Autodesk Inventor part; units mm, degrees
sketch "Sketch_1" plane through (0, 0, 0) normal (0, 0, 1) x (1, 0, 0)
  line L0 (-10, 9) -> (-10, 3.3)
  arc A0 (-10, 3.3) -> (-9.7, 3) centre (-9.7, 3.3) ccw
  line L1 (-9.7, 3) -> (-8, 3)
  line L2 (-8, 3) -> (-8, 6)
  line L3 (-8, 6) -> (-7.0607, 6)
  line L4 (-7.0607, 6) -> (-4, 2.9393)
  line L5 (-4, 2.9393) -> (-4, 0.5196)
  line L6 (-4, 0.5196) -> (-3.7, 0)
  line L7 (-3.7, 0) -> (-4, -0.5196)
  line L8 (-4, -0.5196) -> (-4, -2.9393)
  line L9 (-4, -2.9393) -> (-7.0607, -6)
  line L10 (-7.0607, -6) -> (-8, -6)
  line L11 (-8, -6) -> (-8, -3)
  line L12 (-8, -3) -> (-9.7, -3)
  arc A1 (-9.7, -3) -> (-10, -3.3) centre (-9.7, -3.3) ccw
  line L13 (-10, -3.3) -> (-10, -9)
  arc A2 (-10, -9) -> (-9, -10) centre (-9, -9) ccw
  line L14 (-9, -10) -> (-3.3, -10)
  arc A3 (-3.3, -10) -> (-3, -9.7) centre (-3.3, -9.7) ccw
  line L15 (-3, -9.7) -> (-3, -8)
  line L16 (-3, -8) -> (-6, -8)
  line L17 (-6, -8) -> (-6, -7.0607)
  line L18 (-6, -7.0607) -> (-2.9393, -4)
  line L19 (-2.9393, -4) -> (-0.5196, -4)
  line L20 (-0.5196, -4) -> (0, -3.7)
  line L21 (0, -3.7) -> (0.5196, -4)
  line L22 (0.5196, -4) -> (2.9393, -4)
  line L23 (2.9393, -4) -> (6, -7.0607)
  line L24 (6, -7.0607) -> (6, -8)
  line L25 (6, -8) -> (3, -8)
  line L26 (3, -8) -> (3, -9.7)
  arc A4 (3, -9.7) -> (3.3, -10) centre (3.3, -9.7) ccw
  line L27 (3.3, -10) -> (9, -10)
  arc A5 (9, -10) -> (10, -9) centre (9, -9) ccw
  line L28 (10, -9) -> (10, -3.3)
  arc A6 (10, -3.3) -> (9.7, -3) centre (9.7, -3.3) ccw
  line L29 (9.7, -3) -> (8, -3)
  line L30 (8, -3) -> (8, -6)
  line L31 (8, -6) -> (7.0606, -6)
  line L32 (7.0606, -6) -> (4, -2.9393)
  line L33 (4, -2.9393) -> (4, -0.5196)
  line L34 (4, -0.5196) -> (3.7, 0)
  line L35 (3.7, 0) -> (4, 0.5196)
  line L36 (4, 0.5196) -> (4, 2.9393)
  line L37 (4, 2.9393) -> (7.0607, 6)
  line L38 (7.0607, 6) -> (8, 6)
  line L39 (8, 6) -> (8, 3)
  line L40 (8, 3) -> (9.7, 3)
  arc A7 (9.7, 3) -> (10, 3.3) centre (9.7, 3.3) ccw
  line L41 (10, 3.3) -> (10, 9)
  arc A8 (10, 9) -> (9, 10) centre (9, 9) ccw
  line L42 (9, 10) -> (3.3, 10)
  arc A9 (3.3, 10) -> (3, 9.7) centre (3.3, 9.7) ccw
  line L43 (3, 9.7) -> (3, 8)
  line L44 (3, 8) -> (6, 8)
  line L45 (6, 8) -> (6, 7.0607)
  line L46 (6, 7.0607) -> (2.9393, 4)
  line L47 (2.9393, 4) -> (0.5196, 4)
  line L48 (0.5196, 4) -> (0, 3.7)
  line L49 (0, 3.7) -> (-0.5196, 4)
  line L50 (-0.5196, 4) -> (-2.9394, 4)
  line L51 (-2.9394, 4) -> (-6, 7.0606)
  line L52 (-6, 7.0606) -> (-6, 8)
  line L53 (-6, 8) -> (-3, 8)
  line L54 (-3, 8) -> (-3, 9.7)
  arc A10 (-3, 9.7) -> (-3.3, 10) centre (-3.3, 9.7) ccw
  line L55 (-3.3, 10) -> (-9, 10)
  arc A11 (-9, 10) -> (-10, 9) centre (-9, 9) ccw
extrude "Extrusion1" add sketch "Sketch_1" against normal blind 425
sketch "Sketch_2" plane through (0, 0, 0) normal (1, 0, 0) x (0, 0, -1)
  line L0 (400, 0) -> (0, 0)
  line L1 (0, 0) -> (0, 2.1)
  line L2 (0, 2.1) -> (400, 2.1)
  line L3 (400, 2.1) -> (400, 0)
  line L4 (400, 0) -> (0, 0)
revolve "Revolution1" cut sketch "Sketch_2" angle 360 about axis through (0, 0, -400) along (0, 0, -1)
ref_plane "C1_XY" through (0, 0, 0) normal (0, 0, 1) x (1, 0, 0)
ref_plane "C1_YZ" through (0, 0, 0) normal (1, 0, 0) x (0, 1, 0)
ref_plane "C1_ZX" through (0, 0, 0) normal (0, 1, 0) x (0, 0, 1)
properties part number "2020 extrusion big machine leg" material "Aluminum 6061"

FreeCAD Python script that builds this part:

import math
import FreeCAD as App
import Part
import Sketcher
Q = App.Units.Quantity


def add_polygon(sketch, points):
    """Adds a closed chain of lines whose ends are joined by coincident constraints."""
    first, n = sketch.GeometryCount, len(points)
    for a, b in zip(points, points[1:] + points[:1]):
        sketch.addGeometry(Part.LineSegment(App.Vector(*a, 0), App.Vector(*b, 0)), False)
    for i in range(n):
        sketch.addConstraint(Sketcher.Constraint("Coincident", first + i, 2, first + (i + 1) % n, 1))

doc = App.newDocument("Part")
params = doc.addObject("Spreadsheet::Sheet", "Params")
for row, (alias, value) in enumerate([
    ("sketch1_radius", "1 mm"),
    ("sketch1_radius2", "0.3 mm"),
    ("sketch1_width", "3 mm"),
    ("sketch1_width2", "1.7 mm"),
    ("sketch1_width3", "5.7 mm"),
    ("pad1_length", "425 mm"),
    ("sketch2_height", "400 mm"),
    ("sketch2_width", "2.1 mm"),
    ("groove_angle", "360 deg"),
], start=1):
    params.set(f"A{row}", alias)
    params.set(f"B{row}", "=" + value)
    params.setAlias(f"B{row}", alias)

body = doc.addObject("PartDesign::Body", "Body")

# Sketch on XY plane
sketch1 = doc.addObject("Sketcher::SketchObject", "Sketch")
body.addObject(sketch1)
sketch1.AttachmentSupport = (doc.XY_Plane, [""])
sketch1.MapMode = "FlatFace"
sketch1.addGeometry([
    Part.ArcOfCircle(Part.Circle(App.Vector(-9, 9, 0), App.Vector(0, 0, 1), 1), math.radians(90), math.radians(180)),  # 0
    Part.LineSegment(App.Vector(-10, 9, 0), App.Vector(-10, 3.3, 0)),  # 1
    Part.ArcOfCircle(Part.Circle(App.Vector(-9.7, 3.3, 0), App.Vector(0, 0, 1), 0.3), math.radians(180), math.radians(270)),  # 2
    Part.LineSegment(App.Vector(-9.7, 3, 0), App.Vector(-8, 3, 0)),  # 3
    Part.LineSegment(App.Vector(-8, 3, 0), App.Vector(-8, 6, 0)),  # 4
    Part.LineSegment(App.Vector(-8, 6, 0), App.Vector(-7.06, 6, 0)),  # 5
    Part.LineSegment(App.Vector(-7.06, 6, 0), App.Vector(-4, 2.94, 0)),  # 6
    Part.LineSegment(App.Vector(-4, 2.94, 0), App.Vector(-4, 0.52, 0)),  # 7
    Part.LineSegment(App.Vector(-4, 0.52, 0), App.Vector(-3.7, 0, 0)),  # 8
    Part.LineSegment(App.Vector(-3.7, 0, 0), App.Vector(-4, -0.52, 0)),  # 9
    Part.LineSegment(App.Vector(-4, -0.52, 0), App.Vector(-4, -2.94, 0)),  # 10
    Part.LineSegment(App.Vector(-4, -2.94, 0), App.Vector(-7.06, -6, 0)),  # 11
    Part.LineSegment(App.Vector(-7.06, -6, 0), App.Vector(-8, -6, 0)),  # 12
    Part.LineSegment(App.Vector(-8, -6, 0), App.Vector(-8, -3, 0)),  # 13
    Part.LineSegment(App.Vector(-8, -3, 0), App.Vector(-9.7, -3, 0)),  # 14
    Part.ArcOfCircle(Part.Circle(App.Vector(-9.7, -3.3, 0), App.Vector(0, 0, 1), 0.3), math.radians(90), math.radians(180)),  # 15
    Part.LineSegment(App.Vector(-10, -3.3, 0), App.Vector(-10, -9, 0)),  # 16
    Part.ArcOfCircle(Part.Circle(App.Vector(-9, -9, 0), App.Vector(0, 0, 1), 1), math.radians(180), math.radians(270)),  # 17
    Part.LineSegment(App.Vector(-9, -10, 0), App.Vector(-3.3, -10, 0)),  # 18
    Part.ArcOfCircle(Part.Circle(App.Vector(-3.3, -9.7, 0), App.Vector(0, 0, 1), 0.3), math.radians(-90), math.radians(0)),  # 19
    Part.LineSegment(App.Vector(-3, -9.7, 0), App.Vector(-3, -8, 0)),  # 20
    Part.LineSegment(App.Vector(-3, -8, 0), App.Vector(-6, -8, 0)),  # 21
    Part.LineSegment(App.Vector(-6, -8, 0), App.Vector(-6, -7.06, 0)),  # 22
    Part.LineSegment(App.Vector(-6, -7.06, 0), App.Vector(-2.94, -4, 0)),  # 23
    Part.LineSegment(App.Vector(-2.94, -4, 0), App.Vector(-0.52, -4, 0)),  # 24
    Part.LineSegment(App.Vector(-0.52, -4, 0), App.Vector(0, -3.7, 0)),  # 25
    Part.LineSegment(App.Vector(0, -3.7, 0), App.Vector(0.52, -4, 0)),  # 26
    Part.LineSegment(App.Vector(0.52, -4, 0), App.Vector(2.94, -4, 0)),  # 27
    Part.LineSegment(App.Vector(2.94, -4, 0), App.Vector(6, -7.06, 0)),  # 28
    Part.LineSegment(App.Vector(6, -7.06, 0), App.Vector(6, -8, 0)),  # 29
    Part.LineSegment(App.Vector(6, -8, 0), App.Vector(3, -8, 0)),  # 30
    Part.LineSegment(App.Vector(3, -8, 0), App.Vector(3, -9.7, 0)),  # 31
    Part.ArcOfCircle(Part.Circle(App.Vector(3.3, -9.7, 0), App.Vector(0, 0, 1), 0.3), math.radians(180), math.radians(270)),  # 32
    Part.LineSegment(App.Vector(3.3, -10, 0), App.Vector(9, -10, 0)),  # 33
    Part.ArcOfCircle(Part.Circle(App.Vector(9, -9, 0), App.Vector(0, 0, 1), 1), math.radians(-90), math.radians(0)),  # 34
    Part.LineSegment(App.Vector(10, -9, 0), App.Vector(10, -3.3, 0)),  # 35
    Part.ArcOfCircle(Part.Circle(App.Vector(9.7, -3.3, 0), App.Vector(0, 0, 1), 0.3), math.radians(0), math.radians(90)),  # 36
    Part.LineSegment(App.Vector(9.7, -3, 0), App.Vector(8, -3, 0)),  # 37
    Part.LineSegment(App.Vector(8, -3, 0), App.Vector(8, -6, 0)),  # 38
    Part.LineSegment(App.Vector(8, -6, 0), App.Vector(7.06, -6, 0)),  # 39
    Part.LineSegment(App.Vector(7.06, -6, 0), App.Vector(4, -2.94, 0)),  # 40
    Part.LineSegment(App.Vector(4, -2.94, 0), App.Vector(4, -0.52, 0)),  # 41
    Part.LineSegment(App.Vector(4, -0.52, 0), App.Vector(3.7, 0, 0)),  # 42
    Part.LineSegment(App.Vector(3.7, 0, 0), App.Vector(4, 0.52, 0)),  # 43
    Part.LineSegment(App.Vector(4, 0.52, 0), App.Vector(4, 2.94, 0)),  # 44
    Part.LineSegment(App.Vector(4, 2.94, 0), App.Vector(7.06, 6, 0)),  # 45
    Part.LineSegment(App.Vector(7.06, 6, 0), App.Vector(8, 6, 0)),  # 46
    Part.LineSegment(App.Vector(8, 6, 0), App.Vector(8, 3, 0)),  # 47
    Part.LineSegment(App.Vector(8, 3, 0), App.Vector(9.7, 3, 0)),  # 48
    Part.ArcOfCircle(Part.Circle(App.Vector(9.7, 3.3, 0), App.Vector(0, 0, 1), 0.3), math.radians(-90), math.radians(0)),  # 49
    Part.LineSegment(App.Vector(10, 3.3, 0), App.Vector(10, 9, 0)),  # 50
    Part.ArcOfCircle(Part.Circle(App.Vector(9, 9, 0), App.Vector(0, 0, 1), 1), math.radians(0), math.radians(90)),  # 51
    Part.LineSegment(App.Vector(9, 10, 0), App.Vector(3.3, 10, 0)),  # 52
    Part.ArcOfCircle(Part.Circle(App.Vector(3.3, 9.7, 0), App.Vector(0, 0, 1), 0.3), math.radians(90), math.radians(180)),  # 53
    Part.LineSegment(App.Vector(3, 9.7, 0), App.Vector(3, 8, 0)),  # 54
    Part.LineSegment(App.Vector(3, 8, 0), App.Vector(6, 8, 0)),  # 55
    Part.LineSegment(App.Vector(6, 8, 0), App.Vector(6, 7.06, 0)),  # 56
    Part.LineSegment(App.Vector(6, 7.06, 0), App.Vector(2.94, 4, 0)),  # 57
    Part.LineSegment(App.Vector(2.94, 4, 0), App.Vector(0.52, 4, 0)),  # 58
    Part.LineSegment(App.Vector(0.52, 4, 0), App.Vector(0, 3.7, 0)),  # 59
    Part.LineSegment(App.Vector(0, 3.7, 0), App.Vector(-0.52, 4, 0)),  # 60
    Part.LineSegment(App.Vector(-0.52, 4, 0), App.Vector(-2.94, 4, 0)),  # 61
    Part.LineSegment(App.Vector(-2.94, 4, 0), App.Vector(-6, 7.06, 0)),  # 62
    Part.LineSegment(App.Vector(-6, 7.06, 0), App.Vector(-6, 8, 0)),  # 63
    Part.LineSegment(App.Vector(-6, 8, 0), App.Vector(-3, 8, 0)),  # 64
    Part.LineSegment(App.Vector(-3, 8, 0), App.Vector(-3, 9.7, 0)),  # 65
    Part.ArcOfCircle(Part.Circle(App.Vector(-3.3, 9.7, 0), App.Vector(0, 0, 1), 0.3), math.radians(0), math.radians(90)),  # 66
    Part.LineSegment(App.Vector(-3.3, 10, 0), App.Vector(-9, 10, 0)),  # 67
], False)
sketch1.addConstraint([
    Sketcher.Constraint("Tangent", 0, 2, 1, 1),
    Sketcher.Constraint("Tangent", 1, 2, 2, 1),
    Sketcher.Constraint("Tangent", 2, 2, 3, 1),
    Sketcher.Constraint("Coincident", 3, 2, 4, 1),
    Sketcher.Constraint("Coincident", 4, 2, 5, 1),
    Sketcher.Constraint("Coincident", 5, 2, 6, 1),
    Sketcher.Constraint("Coincident", 6, 2, 7, 1),
    Sketcher.Constraint("Coincident", 7, 2, 8, 1),
    Sketcher.Constraint("Coincident", 8, 2, 9, 1),
    Sketcher.Constraint("Coincident", 9, 2, 10, 1),
    Sketcher.Constraint("Coincident", 10, 2, 11, 1),
    Sketcher.Constraint("Coincident", 11, 2, 12, 1),
    Sketcher.Constraint("Coincident", 12, 2, 13, 1),
    Sketcher.Constraint("Coincident", 13, 2, 14, 1),
    Sketcher.Constraint("Tangent", 14, 2, 15, 1),
    Sketcher.Constraint("Tangent", 15, 2, 16, 1),
    Sketcher.Constraint("Tangent", 16, 2, 17, 1),
    Sketcher.Constraint("Tangent", 17, 2, 18, 1),
    Sketcher.Constraint("Tangent", 18, 2, 19, 1),
    Sketcher.Constraint("Tangent", 19, 2, 20, 1),
    Sketcher.Constraint("Coincident", 20, 2, 21, 1),
    Sketcher.Constraint("Coincident", 21, 2, 22, 1),
    Sketcher.Constraint("Coincident", 22, 2, 23, 1),
    Sketcher.Constraint("Coincident", 23, 2, 24, 1),
    Sketcher.Constraint("Coincident", 24, 2, 25, 1),
    Sketcher.Constraint("Coincident", 25, 2, 26, 1),
    Sketcher.Constraint("Coincident", 26, 2, 27, 1),
    Sketcher.Constraint("Coincident", 27, 2, 28, 1),
    Sketcher.Constraint("Coincident", 28, 2, 29, 1),
    Sketcher.Constraint("Coincident", 29, 2, 30, 1),
    Sketcher.Constraint("Coincident", 30, 2, 31, 1),
    Sketcher.Constraint("Tangent", 31, 2, 32, 1),
    Sketcher.Constraint("Tangent", 32, 2, 33, 1),
    Sketcher.Constraint("Tangent", 33, 2, 34, 1),
    Sketcher.Constraint("Tangent", 34, 2, 35, 1),
    Sketcher.Constraint("Tangent", 35, 2, 36, 1),
    Sketcher.Constraint("Tangent", 36, 2, 37, 1),
    Sketcher.Constraint("Coincident", 37, 2, 38, 1),
    Sketcher.Constraint("Coincident", 38, 2, 39, 1),
    Sketcher.Constraint("Coincident", 39, 2, 40, 1),
    Sketcher.Constraint("Coincident", 40, 2, 41, 1),
    Sketcher.Constraint("Coincident", 41, 2, 42, 1),
    Sketcher.Constraint("Coincident", 42, 2, 43, 1),
    Sketcher.Constraint("Coincident", 43, 2, 44, 1),
    Sketcher.Constraint("Coincident", 44, 2, 45, 1),
    Sketcher.Constraint("Coincident", 45, 2, 46, 1),
    Sketcher.Constraint("Coincident", 46, 2, 47, 1),
    Sketcher.Constraint("Coincident", 47, 2, 48, 1),
    Sketcher.Constraint("Tangent", 48, 2, 49, 1),
    Sketcher.Constraint("Tangent", 49, 2, 50, 1),
    Sketcher.Constraint("Tangent", 50, 2, 51, 1),
    Sketcher.Constraint("Tangent", 51, 2, 52, 1),
    Sketcher.Constraint("Tangent", 52, 2, 53, 1),
    Sketcher.Constraint("Tangent", 53, 2, 54, 1),
    Sketcher.Constraint("Coincident", 54, 2, 55, 1),
    Sketcher.Constraint("Coincident", 55, 2, 56, 1),
    Sketcher.Constraint("Coincident", 56, 2, 57, 1),
    Sketcher.Constraint("Coincident", 57, 2, 58, 1),
    Sketcher.Constraint("Coincident", 58, 2, 59, 1),
    Sketcher.Constraint("Coincident", 59, 2, 60, 1),
    Sketcher.Constraint("Coincident", 60, 2, 61, 1),
    Sketcher.Constraint("Coincident", 61, 2, 62, 1),
    Sketcher.Constraint("Coincident", 62, 2, 63, 1),
    Sketcher.Constraint("Coincident", 63, 2, 64, 1),
    Sketcher.Constraint("Coincident", 64, 2, 65, 1),
    Sketcher.Constraint("Tangent", 65, 2, 66, 1),
    Sketcher.Constraint("Tangent", 66, 2, 67, 1),
    Sketcher.Constraint("Tangent", 67, 2, 0, 1),
    Sketcher.Constraint("Vertical", 1),
    Sketcher.Constraint("Horizontal", 3),
    Sketcher.Constraint("Vertical", 4),
    Sketcher.Constraint("Horizontal", 5),
    Sketcher.Constraint("Vertical", 7),
    Sketcher.Constraint("Vertical", 10),
    Sketcher.Constraint("Horizontal", 12),
    Sketcher.Constraint("Vertical", 13),
    Sketcher.Constraint("Horizontal", 14),
    Sketcher.Constraint("Vertical", 16),
    Sketcher.Constraint("Horizontal", 18),
    Sketcher.Constraint("Vertical", 20),
    Sketcher.Constraint("Horizontal", 21),
    Sketcher.Constraint("Vertical", 22),
    Sketcher.Constraint("Horizontal", 24),
    Sketcher.Constraint("Horizontal", 27),
    Sketcher.Constraint("Vertical", 29),
    Sketcher.Constraint("Horizontal", 30),
    Sketcher.Constraint("Vertical", 31),
    Sketcher.Constraint("Horizontal", 33),
    Sketcher.Constraint("Vertical", 35),
    Sketcher.Constraint("Horizontal", 37),
    Sketcher.Constraint("Vertical", 38),
    Sketcher.Constraint("Horizontal", 39),
    Sketcher.Constraint("Vertical", 41),
    Sketcher.Constraint("Vertical", 44),
    Sketcher.Constraint("Horizontal", 46),
    Sketcher.Constraint("Vertical", 47),
    Sketcher.Constraint("Horizontal", 48),
    Sketcher.Constraint("Vertical", 50),
    Sketcher.Constraint("Horizontal", 52),
    Sketcher.Constraint("Vertical", 54),
    Sketcher.Constraint("Horizontal", 55),
    Sketcher.Constraint("Vertical", 56),
    Sketcher.Constraint("Horizontal", 58),
    Sketcher.Constraint("Horizontal", 61),
    Sketcher.Constraint("Vertical", 63),
    Sketcher.Constraint("Horizontal", 64),
    Sketcher.Constraint("Vertical", 65),
    Sketcher.Constraint("Horizontal", 67),
    Sketcher.Constraint("Equal", 2, 15),
    Sketcher.Constraint("Equal", 0, 17),
    Sketcher.Constraint("Equal", 15, 19),
    Sketcher.Constraint("Equal", 19, 32),
    Sketcher.Constraint("Equal", 17, 34),
    Sketcher.Constraint("Equal", 32, 36),
    Sketcher.Constraint("Equal", 36, 49),
    Sketcher.Constraint("Equal", 34, 51),
    Sketcher.Constraint("Equal", 49, 53),
    Sketcher.Constraint("Equal", 53, 66),
    Sketcher.Constraint("Symmetric", 0, 3, 34, 3, -1, 1),
    Sketcher.Constraint("Symmetric", 15, 3, 49, 3, -1, 1),
    Sketcher.Constraint("Symmetric", 19, 3, 53, 3, -1, 1),
    Sketcher.Constraint("Symmetric", 3, 2, 37, 2, -1, 1),
    Sketcher.Constraint("Symmetric", 5, 2, 39, 2, -1, 1),
    Sketcher.Constraint("Symmetric", 6, 2, 40, 2, -1, 1),
    Sketcher.Constraint("Symmetric", 8, 2, 42, 2, -1, 1),
    Sketcher.Constraint("Symmetric", 9, 2, 43, 2, -1, 1),
    Sketcher.Constraint("Symmetric", 11, 2, 45, 2, -1, 1),
    Sketcher.Constraint("Symmetric", 21, 2, 55, 2, -1, 1),
    Sketcher.Constraint("Symmetric", 23, 2, 57, 2, -1, 1),
    Sketcher.Constraint("Symmetric", 25, 2, 59, 2, -1, 1),
    Sketcher.Constraint("Symmetric", 26, 2, 60, 2, -1, 1),
    Sketcher.Constraint("Symmetric", 28, 2, 62, 2, -1, 1),
    Sketcher.Constraint("Symmetric", 30, 2, 64, 2, -1, 1),
    Sketcher.Constraint("Symmetric", 19, 3, 32, 3, -2),
    Sketcher.Constraint("Symmetric", 15, 3, 36, 3, -2),
    Sketcher.Constraint("Symmetric", 24, 2, 26, 2, -2),
    Sketcher.Constraint("Symmetric", 22, 2, 28, 2, -2),
    Sketcher.Constraint("Symmetric", 12, 2, 38, 2, -2),
    Sketcher.Constraint("Symmetric", 10, 2, 40, 2, -2),
    Sketcher.Constraint("PointOnObject", 8, 2, -1),
    Sketcher.Constraint("PointOnObject", 25, 2, -2),
    Sketcher.Constraint("Perpendicular", 6, 11),
    Sketcher.Constraint("Parallel", 11, 23),
    Sketcher.Constraint("Perpendicular", 8, 25),
    Sketcher.Constraint("Perpendicular", 9, 26),
    Sketcher.Constraint("Perpendicular", 23, 28),
    Sketcher.Constraint("Perpendicular", 25, 42),
    Sketcher.Constraint("Perpendicular", 40, 45),
    Sketcher.Constraint("Parallel", 45, 57),
    Sketcher.Constraint("Perpendicular", 42, 59),
    Sketcher.Constraint("Perpendicular", 57, 62),
    Sketcher.Constraint("Horizontal", 21, 2, 29, 2),
    Sketcher.Constraint("Vertical", 5, 2, 11, 2),
    Sketcher.Constraint("Vertical", 38, 2, 46, 2),
    Sketcher.Constraint("Equal", 67, 1),
    Sketcher.Constraint("Equal", 64, 4),
    Sketcher.Constraint("Equal", 61, 7),
    Sketcher.Constraint("Equal", 48, 20),
    Sketcher.Constraint("Equal", 46, 22),
    Sketcher.Constraint("Equal", 11, 23),
    Sketcher.Constraint("Equal", 9, 25),
    Sketcher.Constraint("Radius", 0, 1.0),
    Sketcher.Constraint("Radius", 2, 0.3),
    Sketcher.Constraint("DistanceX", 21, 2, 21, 1, 3.0),
    Sketcher.Constraint("Angle", 8, Q("-59.9993 deg")),
    Sketcher.Constraint("DistanceX", 3, 1, 3, 2, 1.7),
    Sketcher.Constraint("DistanceX", 18, 1, 18, 2, 5.7),
    Sketcher.Constraint("DistanceX", 0, 3, -1, 1, 9.0),
    Sketcher.Constraint("DistanceX", 6, 2, -1, 1, 4.0),
    Sketcher.Constraint("Distance", 8, 0.6),
    Sketcher.Constraint("DistanceX", 5, 1, 5, 2, 0.9393),
])
sketch1.setExpression("Constraints[161]", "Params.sketch1_radius")
sketch1.setExpression("Constraints[162]", "Params.sketch1_radius2")
sketch1.setExpression("Constraints[163]", "Params.sketch1_width")
sketch1.setExpression("Constraints[165]", "Params.sketch1_width2")
sketch1.setExpression("Constraints[166]", "Params.sketch1_width3")
pad1 = doc.addObject("PartDesign::Pad", "Pad")
body.addObject(pad1)
pad1.Profile = sketch1
pad1.setExpression("Length", "Params.pad1_length")
pad1.Reversed = True

# Sketch on YZ plane
sketch2 = doc.addObject("Sketcher::SketchObject", "Sketch001")
body.addObject(sketch2)
sketch2.AttachmentSupport = (doc.YZ_Plane, [""])
sketch2.MapMode = "FlatFace"
add_polygon(sketch2, [(0, 0), (0, -400), (2.1, -400), (2.1, 0)])  # lines 0-3
sketch2.addConstraint([
    Sketcher.Constraint("Vertical", 0),
    Sketcher.Constraint("Horizontal", 1),
    Sketcher.Constraint("Vertical", 2),
    Sketcher.Constraint("Horizontal", 3),
    Sketcher.Constraint("Coincident", 3, 2, -1, 1),
    Sketcher.Constraint("DistanceY", 0, 2, 0, 1, 400.0),
    Sketcher.Constraint("DistanceX", 1, 1, 1, 2, 2.1),
])
sketch2.setExpression("Constraints[9]", "Params.sketch2_height")
sketch2.setExpression("Constraints[10]", "Params.sketch2_width")
groove = doc.addObject("PartDesign::Groove", "Groove")
body.addObject(groove)
groove.Profile = sketch2
groove.ReferenceAxis = (sketch2, ["V_Axis"])
groove.setExpression("Angle", "Params.groove_angle")

doc.recompute()
